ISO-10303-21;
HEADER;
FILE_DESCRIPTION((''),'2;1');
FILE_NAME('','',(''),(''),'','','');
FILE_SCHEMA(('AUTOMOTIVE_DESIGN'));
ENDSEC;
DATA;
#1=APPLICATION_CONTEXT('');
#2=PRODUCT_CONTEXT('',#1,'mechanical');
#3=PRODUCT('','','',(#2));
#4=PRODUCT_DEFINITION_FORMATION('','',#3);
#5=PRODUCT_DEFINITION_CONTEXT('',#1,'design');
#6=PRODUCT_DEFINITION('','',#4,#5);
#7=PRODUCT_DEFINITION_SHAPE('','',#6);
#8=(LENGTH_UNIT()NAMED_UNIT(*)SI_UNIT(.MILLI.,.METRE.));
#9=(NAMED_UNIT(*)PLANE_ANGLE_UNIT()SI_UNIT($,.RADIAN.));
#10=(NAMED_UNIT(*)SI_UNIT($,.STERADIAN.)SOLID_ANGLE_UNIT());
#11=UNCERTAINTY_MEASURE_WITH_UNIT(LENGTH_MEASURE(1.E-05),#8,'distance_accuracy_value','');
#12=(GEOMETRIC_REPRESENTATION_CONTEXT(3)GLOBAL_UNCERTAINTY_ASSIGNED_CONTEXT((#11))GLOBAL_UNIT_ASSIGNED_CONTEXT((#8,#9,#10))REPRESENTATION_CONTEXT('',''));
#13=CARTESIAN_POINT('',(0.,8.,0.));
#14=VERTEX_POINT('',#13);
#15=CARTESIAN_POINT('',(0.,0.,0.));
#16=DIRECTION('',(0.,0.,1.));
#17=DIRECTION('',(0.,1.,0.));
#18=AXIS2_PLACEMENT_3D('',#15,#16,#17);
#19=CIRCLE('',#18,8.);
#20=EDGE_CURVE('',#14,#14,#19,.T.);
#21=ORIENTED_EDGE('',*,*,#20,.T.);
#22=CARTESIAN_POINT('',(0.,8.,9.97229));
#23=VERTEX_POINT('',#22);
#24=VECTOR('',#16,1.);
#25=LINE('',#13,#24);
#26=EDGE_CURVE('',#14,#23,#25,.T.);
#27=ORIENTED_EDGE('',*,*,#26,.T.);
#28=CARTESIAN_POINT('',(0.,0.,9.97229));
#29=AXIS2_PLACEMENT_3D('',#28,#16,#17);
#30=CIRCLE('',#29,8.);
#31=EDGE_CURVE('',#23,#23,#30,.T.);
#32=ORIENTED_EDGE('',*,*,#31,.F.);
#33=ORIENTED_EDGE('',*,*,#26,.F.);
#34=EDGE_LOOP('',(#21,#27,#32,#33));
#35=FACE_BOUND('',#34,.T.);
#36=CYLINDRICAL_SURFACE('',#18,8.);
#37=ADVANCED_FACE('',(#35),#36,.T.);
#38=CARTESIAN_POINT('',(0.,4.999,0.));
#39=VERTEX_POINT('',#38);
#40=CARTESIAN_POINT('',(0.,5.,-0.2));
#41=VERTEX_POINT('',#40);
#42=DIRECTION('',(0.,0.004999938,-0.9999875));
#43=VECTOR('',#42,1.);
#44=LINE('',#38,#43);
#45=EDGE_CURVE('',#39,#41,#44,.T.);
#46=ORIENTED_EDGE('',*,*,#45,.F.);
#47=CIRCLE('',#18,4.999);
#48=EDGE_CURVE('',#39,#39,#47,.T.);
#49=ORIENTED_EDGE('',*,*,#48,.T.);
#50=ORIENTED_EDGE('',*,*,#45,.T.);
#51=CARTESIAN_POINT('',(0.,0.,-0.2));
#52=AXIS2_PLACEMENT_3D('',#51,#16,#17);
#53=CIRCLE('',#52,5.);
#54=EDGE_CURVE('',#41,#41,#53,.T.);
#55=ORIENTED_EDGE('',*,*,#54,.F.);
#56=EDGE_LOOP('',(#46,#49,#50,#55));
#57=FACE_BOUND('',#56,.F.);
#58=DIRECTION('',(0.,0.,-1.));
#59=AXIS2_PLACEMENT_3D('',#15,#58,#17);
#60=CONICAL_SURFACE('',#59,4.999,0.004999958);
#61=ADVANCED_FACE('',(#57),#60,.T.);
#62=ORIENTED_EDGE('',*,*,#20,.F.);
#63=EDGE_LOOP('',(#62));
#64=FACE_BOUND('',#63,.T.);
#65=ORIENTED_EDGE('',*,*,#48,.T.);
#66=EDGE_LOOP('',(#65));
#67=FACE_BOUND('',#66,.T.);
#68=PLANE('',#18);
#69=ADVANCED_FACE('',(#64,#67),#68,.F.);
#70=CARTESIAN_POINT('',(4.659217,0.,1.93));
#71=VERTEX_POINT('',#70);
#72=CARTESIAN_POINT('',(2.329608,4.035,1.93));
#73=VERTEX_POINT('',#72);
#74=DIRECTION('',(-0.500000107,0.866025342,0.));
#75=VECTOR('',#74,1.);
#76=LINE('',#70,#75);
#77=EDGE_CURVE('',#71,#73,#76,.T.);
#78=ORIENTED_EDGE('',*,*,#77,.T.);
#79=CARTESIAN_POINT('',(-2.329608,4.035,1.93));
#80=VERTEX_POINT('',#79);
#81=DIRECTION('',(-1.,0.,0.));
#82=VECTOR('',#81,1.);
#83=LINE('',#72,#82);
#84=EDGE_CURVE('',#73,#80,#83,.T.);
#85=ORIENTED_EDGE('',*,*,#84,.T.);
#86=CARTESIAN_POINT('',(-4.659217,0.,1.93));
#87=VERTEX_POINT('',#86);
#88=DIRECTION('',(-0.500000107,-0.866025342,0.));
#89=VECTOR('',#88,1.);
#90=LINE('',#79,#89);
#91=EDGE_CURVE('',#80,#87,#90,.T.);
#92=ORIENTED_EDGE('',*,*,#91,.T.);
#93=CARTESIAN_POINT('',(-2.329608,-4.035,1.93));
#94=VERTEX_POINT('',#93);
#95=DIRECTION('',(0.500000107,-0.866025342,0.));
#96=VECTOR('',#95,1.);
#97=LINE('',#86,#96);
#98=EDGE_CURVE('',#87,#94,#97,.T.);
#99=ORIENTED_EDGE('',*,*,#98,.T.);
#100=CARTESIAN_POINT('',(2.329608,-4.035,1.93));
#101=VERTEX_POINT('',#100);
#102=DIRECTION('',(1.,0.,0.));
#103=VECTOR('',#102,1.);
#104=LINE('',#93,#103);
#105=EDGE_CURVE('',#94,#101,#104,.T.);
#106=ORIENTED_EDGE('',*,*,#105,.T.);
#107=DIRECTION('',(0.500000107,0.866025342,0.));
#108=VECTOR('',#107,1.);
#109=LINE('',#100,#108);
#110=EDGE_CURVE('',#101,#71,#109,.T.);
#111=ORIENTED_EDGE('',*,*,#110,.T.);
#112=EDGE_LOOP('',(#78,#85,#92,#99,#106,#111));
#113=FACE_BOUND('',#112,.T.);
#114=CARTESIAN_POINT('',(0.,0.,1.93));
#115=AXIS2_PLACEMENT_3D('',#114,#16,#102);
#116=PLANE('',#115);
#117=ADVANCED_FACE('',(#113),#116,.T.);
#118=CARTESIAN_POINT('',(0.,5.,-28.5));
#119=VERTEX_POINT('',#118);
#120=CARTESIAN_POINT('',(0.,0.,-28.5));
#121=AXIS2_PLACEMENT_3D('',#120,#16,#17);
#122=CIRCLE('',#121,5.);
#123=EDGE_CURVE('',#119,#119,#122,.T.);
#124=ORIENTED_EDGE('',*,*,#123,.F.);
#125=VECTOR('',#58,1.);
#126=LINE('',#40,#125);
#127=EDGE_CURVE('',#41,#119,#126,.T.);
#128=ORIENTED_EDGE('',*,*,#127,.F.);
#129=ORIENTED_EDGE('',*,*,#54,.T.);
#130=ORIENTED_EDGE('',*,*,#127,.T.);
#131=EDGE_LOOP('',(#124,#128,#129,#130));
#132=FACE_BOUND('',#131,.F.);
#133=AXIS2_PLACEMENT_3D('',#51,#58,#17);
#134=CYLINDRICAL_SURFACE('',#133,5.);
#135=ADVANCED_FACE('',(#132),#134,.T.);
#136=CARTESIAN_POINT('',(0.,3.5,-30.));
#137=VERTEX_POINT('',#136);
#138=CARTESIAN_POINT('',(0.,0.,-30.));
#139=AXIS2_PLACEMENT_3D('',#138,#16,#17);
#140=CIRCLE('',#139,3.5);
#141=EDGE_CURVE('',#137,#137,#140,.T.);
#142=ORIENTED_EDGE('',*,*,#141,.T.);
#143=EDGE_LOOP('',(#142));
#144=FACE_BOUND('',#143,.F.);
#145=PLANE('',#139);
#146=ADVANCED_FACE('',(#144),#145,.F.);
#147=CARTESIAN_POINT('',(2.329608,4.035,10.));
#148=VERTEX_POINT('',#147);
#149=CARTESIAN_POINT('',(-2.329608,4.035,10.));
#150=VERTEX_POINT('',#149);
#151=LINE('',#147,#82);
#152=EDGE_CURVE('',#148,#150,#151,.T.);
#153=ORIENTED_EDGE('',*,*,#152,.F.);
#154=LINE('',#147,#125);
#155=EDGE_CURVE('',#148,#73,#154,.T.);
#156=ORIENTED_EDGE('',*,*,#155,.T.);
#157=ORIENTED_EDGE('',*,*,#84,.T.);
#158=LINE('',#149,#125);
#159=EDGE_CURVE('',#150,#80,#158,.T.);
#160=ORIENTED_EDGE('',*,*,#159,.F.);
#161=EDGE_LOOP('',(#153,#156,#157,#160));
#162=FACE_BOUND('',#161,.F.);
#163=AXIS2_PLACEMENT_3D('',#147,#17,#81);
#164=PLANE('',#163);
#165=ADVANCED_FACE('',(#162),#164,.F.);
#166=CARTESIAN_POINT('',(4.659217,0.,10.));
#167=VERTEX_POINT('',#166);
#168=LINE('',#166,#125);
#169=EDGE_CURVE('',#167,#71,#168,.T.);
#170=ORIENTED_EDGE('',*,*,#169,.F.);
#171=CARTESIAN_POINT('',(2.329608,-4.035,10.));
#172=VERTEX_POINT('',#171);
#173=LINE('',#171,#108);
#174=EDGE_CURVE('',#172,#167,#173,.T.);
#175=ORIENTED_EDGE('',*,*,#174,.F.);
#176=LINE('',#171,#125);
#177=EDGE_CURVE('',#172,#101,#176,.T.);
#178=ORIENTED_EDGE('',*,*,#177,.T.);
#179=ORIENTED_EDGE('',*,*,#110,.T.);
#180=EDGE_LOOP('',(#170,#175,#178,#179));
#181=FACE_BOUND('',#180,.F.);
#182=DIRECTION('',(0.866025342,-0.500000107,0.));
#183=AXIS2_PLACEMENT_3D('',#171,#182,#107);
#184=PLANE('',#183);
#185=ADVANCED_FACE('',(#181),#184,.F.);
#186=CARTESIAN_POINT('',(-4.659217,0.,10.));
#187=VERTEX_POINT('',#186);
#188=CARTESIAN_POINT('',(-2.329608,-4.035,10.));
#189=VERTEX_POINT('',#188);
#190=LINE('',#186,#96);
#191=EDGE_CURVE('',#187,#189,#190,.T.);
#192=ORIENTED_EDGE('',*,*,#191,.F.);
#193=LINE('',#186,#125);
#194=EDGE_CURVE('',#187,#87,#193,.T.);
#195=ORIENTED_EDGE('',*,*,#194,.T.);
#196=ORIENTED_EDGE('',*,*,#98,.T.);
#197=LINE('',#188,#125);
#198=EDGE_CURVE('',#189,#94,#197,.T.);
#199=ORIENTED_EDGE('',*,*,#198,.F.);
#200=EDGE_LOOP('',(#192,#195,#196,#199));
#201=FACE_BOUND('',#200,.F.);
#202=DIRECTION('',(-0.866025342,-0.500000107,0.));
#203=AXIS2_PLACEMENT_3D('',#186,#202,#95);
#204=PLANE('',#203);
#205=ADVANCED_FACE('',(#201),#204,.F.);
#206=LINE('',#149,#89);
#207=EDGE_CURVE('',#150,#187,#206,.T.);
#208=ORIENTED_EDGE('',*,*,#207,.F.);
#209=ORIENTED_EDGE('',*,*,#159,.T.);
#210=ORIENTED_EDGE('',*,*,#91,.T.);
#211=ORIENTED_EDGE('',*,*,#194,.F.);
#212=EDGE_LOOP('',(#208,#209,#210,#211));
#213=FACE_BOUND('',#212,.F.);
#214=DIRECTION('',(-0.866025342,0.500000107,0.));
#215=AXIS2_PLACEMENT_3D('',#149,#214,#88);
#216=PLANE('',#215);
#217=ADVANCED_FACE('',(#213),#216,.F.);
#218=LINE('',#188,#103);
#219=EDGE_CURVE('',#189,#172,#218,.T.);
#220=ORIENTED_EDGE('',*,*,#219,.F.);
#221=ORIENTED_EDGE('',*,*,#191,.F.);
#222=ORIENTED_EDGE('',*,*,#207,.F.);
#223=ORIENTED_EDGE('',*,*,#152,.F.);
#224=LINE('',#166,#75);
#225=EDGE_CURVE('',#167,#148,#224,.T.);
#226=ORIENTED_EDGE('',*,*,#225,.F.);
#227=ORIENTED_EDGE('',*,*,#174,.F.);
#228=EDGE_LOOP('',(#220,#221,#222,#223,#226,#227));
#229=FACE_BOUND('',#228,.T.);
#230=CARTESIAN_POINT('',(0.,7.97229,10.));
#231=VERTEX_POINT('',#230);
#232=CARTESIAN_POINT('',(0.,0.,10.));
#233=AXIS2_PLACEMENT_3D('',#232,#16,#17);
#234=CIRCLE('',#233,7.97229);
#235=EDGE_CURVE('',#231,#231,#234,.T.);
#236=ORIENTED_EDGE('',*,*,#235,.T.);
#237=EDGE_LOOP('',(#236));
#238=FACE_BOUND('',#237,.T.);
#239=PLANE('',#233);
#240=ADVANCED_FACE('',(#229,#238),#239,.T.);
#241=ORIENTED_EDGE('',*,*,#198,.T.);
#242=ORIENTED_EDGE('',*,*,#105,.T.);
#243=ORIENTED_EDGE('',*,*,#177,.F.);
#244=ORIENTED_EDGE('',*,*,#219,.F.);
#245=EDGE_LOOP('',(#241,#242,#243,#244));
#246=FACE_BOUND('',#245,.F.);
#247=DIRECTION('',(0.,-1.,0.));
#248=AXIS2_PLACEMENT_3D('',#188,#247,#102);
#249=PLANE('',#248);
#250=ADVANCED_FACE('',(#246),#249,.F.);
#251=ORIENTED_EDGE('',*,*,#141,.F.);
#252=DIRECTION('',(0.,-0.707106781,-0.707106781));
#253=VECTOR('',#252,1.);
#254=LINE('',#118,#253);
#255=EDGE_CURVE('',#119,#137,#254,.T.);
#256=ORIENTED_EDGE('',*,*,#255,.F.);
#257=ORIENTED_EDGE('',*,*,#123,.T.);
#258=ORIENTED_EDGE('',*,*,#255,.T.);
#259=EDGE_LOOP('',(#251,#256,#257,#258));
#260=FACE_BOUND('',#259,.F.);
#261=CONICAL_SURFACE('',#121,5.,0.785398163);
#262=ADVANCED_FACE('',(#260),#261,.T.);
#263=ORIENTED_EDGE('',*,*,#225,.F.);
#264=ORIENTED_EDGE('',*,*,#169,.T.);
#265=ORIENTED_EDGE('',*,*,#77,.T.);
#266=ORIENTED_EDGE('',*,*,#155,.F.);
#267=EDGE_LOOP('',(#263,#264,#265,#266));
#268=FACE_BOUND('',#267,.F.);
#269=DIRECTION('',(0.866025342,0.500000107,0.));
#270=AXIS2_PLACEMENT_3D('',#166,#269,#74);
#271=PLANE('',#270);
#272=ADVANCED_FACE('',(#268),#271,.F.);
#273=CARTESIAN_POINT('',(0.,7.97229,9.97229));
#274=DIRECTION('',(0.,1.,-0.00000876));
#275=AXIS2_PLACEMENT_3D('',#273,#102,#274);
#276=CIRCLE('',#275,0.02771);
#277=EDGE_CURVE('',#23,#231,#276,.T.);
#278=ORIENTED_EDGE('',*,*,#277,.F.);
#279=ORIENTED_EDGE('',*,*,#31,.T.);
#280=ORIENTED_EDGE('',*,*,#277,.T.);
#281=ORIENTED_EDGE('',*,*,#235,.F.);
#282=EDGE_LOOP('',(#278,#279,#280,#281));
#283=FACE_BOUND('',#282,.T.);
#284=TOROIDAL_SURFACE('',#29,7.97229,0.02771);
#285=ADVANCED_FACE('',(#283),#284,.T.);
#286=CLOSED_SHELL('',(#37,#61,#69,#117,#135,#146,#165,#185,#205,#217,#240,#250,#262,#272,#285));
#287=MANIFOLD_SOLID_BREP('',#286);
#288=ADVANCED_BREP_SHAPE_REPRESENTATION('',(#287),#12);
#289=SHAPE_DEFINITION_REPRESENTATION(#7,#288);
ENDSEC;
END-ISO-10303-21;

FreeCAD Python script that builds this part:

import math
import FreeCAD as App
import Part
import Sketcher
from FreeCAD import Vector
Q = App.Units.Quantity

doc = App.newDocument("Part")
body = doc.addObject("PartDesign::Body", "Body")

# Sketch on YZ plane
sketch1 = body.newObject("Sketcher::SketchObject", "Sketch")
sketch1.AttachmentSupport = (doc.getObject("YZ_Plane"), [""])
sketch1.MapMode = "FlatFace"
sketch1.addGeometry(Part.LineSegment(Vector(4.999, 0, 0), Vector(8, 0, 0)), False)
sketch1.addGeometry(Part.LineSegment(Vector(8, 0, 0), Vector(8, 9.97229, 0)), False)
sketch1.addGeometry(Part.ArcOfCircle(Part.Circle(Vector(7.97229, 9.97229, 0), Vector(0, 0, 1), 0.02771), math.radians(-0.000502), math.radians(90.000502)), False)
sketch1.addGeometry(Part.LineSegment(Vector(7.97229, 10, 0), Vector(0, 10, 0)), False)
sketch1.addGeometry(Part.LineSegment(Vector(0, 10, 0), Vector(0, -30, 0)), False)
sketch1.addGeometry(Part.LineSegment(Vector(0, -30, 0), Vector(3.5, -30, 0)), False)
sketch1.addGeometry(Part.LineSegment(Vector(3.5, -30, 0), Vector(5, -28.5, 0)), False)
sketch1.addGeometry(Part.LineSegment(Vector(5, -28.5, 0), Vector(5, -0.2, 0)), False)
sketch1.addGeometry(Part.LineSegment(Vector(5, -0.2, 0), Vector(4.999, 0, 0)), False)
sketch1.addConstraint(Sketcher.Constraint("Coincident", 0, 2, 1, 1))
sketch1.addConstraint(Sketcher.Constraint("Coincident", 1, 2, 2, 1))
sketch1.addConstraint(Sketcher.Constraint("Coincident", 2, 2, 3, 1))
sketch1.addConstraint(Sketcher.Constraint("Coincident", 3, 2, 4, 1))
sketch1.addConstraint(Sketcher.Constraint("Coincident", 4, 2, 5, 1))
sketch1.addConstraint(Sketcher.Constraint("Coincident", 5, 2, 6, 1))
sketch1.addConstraint(Sketcher.Constraint("Coincident", 6, 2, 7, 1))
sketch1.addConstraint(Sketcher.Constraint("Coincident", 7, 2, 8, 1))
sketch1.addConstraint(Sketcher.Constraint("Coincident", 8, 2, 0, 1))
sketch1.addConstraint(Sketcher.Constraint("Horizontal", 0))
sketch1.addConstraint(Sketcher.Constraint("Vertical", 1))
sketch1.addConstraint(Sketcher.Constraint("Horizontal", 3))
sketch1.addConstraint(Sketcher.Constraint("Vertical", 4))
sketch1.addConstraint(Sketcher.Constraint("Horizontal", 5))
sketch1.addConstraint(Sketcher.Constraint("Vertical", 7))
sketch1.addConstraint(Sketcher.Constraint("PointOnObject", 0, 2, -1))
sketch1.addConstraint(Sketcher.Constraint("PointOnObject", 3, 2, -2))
sketch1.addConstraint(Sketcher.Constraint("Horizontal", 2, 3, 1, 2))
sketch1.addConstraint(Sketcher.Constraint("DistanceY", 4, 2, 4, 1, Q("40 mm")))
sketch1.addConstraint(Sketcher.Constraint("Angle", 6, Q("45 deg")))
sketch1.addConstraint(Sketcher.Constraint("DistanceX", 5, 1, 5, 2, Q("3.5 mm")))
sketch1.addConstraint(Sketcher.Constraint("DistanceY", 7, 1, 7, 2, Q("28.3 mm")))
sketch1.addConstraint(Sketcher.Constraint("DistanceX", -1, 1, 0, 2, Q("8 mm")))
sketch1.addConstraint(Sketcher.Constraint("DistanceY", -1, 1, 2, 2, Q("10 mm")))
sketch1.addConstraint(Sketcher.Constraint("DistanceX", -1, 1, 6, 2, Q("5 mm")))
sketch1.addConstraint(Sketcher.Constraint("DistanceX", 0, 1, 0, 2, Q("3.001 mm")))
sketch1.addConstraint(Sketcher.Constraint("Radius", 2, Q("0.02771 mm")))
sketch1.addConstraint(Sketcher.Constraint("DistanceX", 3, 2, 3, 1, Q("7.97229 mm")))
revolution = body.newObject("PartDesign::Revolution", "Revolution")
revolution.Profile = sketch1
revolution.ReferenceAxis = (sketch1, ["V_Axis"])
revolution.Angle = 360

# Sketch on XY plane
sketch2 = body.newObject("Sketcher::SketchObject", "Sketch001")
sketch2.AttachmentSupport = (doc.getObject("XY_Plane"), [""])
sketch2.MapMode = "FlatFace"
sketch2.AttachmentOffset = App.Placement(Vector(0, 0, 10), App.Rotation())
sketch2.addGeometry(Part.LineSegment(Vector(4.659217, 0, 0), Vector(2.329608, 4.035, 0)), False)
sketch2.addGeometry(Part.LineSegment(Vector(2.329608, 4.035, 0), Vector(-2.329608, 4.035, 0)), False)
sketch2.addGeometry(Part.LineSegment(Vector(-2.329608, 4.035, 0), Vector(-4.659217, 0, 0)), False)
sketch2.addGeometry(Part.LineSegment(Vector(-4.659217, 0, 0), Vector(-2.329608, -4.035, 0)), False)
sketch2.addGeometry(Part.LineSegment(Vector(-2.329608, -4.035, 0), Vector(2.329608, -4.035, 0)), False)
sketch2.addGeometry(Part.LineSegment(Vector(2.329608, -4.035, 0), Vector(4.659217, 0, 0)), False)
sketch2.addConstraint(Sketcher.Constraint("Coincident", 0, 2, 1, 1))
sketch2.addConstraint(Sketcher.Constraint("Coincident", 1, 2, 2, 1))
sketch2.addConstraint(Sketcher.Constraint("Coincident", 2, 2, 3, 1))
sketch2.addConstraint(Sketcher.Constraint("Coincident", 3, 2, 4, 1))
sketch2.addConstraint(Sketcher.Constraint("Coincident", 4, 2, 5, 1))
sketch2.addConstraint(Sketcher.Constraint("Coincident", 5, 2, 0, 1))
sketch2.addConstraint(Sketcher.Constraint("Horizontal", 1))
sketch2.addConstraint(Sketcher.Constraint("Horizontal", 4))
sketch2.addConstraint(Sketcher.Constraint("Symmetric", 0, 2, 3, 2, -1, 1))
sketch2.addConstraint(Sketcher.Constraint("Symmetric", 2, 2, 5, 2, -1, 1))
sketch2.addConstraint(Sketcher.Constraint("PointOnObject", 2, 2, -1))
sketch2.addConstraint(Sketcher.Constraint("Parallel", 2, 5))
sketch2.addConstraint(Sketcher.Constraint("Vertical", 1, 2, 3, 2))
sketch2.addConstraint(Sketcher.Constraint("Angle", 0, Q("120.000007 deg")))
sketch2.addConstraint(Sketcher.Constraint("DistanceY", 3, 2, 1, 2, Q("8.07 mm")))
sketch2.addConstraint(Sketcher.Constraint("DistanceX", 1, 2, 1, 1, Q("4.659216 mm")))
pocket1 = body.newObject("PartDesign::Pocket", "Pocket")
pocket1.Profile = sketch2
pocket1.Length = 8.07

doc.recompute()
